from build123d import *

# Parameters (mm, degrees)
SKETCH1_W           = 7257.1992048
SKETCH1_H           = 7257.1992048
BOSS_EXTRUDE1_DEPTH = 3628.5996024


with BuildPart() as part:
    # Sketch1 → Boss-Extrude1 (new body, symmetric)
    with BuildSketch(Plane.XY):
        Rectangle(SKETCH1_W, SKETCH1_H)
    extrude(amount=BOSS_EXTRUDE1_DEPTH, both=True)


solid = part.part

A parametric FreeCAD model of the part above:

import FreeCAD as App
import Part
import Sketcher


def add_polygon(sketch, points):
    """Adds a closed chain of lines whose ends are joined by coincident constraints."""
    first, n = sketch.GeometryCount, len(points)
    for a, b in zip(points, points[1:] + points[:1]):
        sketch.addGeometry(Part.LineSegment(App.Vector(*a, 0), App.Vector(*b, 0)), False)
    for i in range(n):
        sketch.addConstraint(Sketcher.Constraint("Coincident", first + i, 2, first + (i + 1) % n, 1))

doc = App.newDocument("Part")
body = doc.addObject("PartDesign::Body", "Body")

# Sketch on XY plane
sketch1 = doc.addObject("Sketcher::SketchObject", "Sketch")
body.addObject(sketch1)
sketch1.AttachmentSupport = (doc.XY_Plane, [""])
sketch1.MapMode = "FlatFace"
add_polygon(sketch1, [(-3629, 3629), (-3629, -3629), (3629, -3629), (3629, 3629)])  # lines 0-3
sketch1.addConstraint(Sketcher.Constraint("Vertical", 0))
sketch1.addConstraint(Sketcher.Constraint("Horizontal", 1))
sketch1.addConstraint(Sketcher.Constraint("Vertical", 2))
sketch1.addConstraint(Sketcher.Constraint("Horizontal", 3))
sketch1.addConstraint(Sketcher.Constraint("Symmetric", 0, 2, 2, 2, -1, 1))
sketch1.addConstraint(Sketcher.Constraint("Equal", 3, 0))
sketch1.addConstraint(Sketcher.Constraint("DistanceX", 1, 1, 1, 2, 7257.199205))
pad1 = doc.addObject("PartDesign::Pad", "Pad")
body.addObject(pad1)
pad1.Profile = sketch1
pad1.Length = 7257.199205
pad1.Midplane = True

doc.recompute()
